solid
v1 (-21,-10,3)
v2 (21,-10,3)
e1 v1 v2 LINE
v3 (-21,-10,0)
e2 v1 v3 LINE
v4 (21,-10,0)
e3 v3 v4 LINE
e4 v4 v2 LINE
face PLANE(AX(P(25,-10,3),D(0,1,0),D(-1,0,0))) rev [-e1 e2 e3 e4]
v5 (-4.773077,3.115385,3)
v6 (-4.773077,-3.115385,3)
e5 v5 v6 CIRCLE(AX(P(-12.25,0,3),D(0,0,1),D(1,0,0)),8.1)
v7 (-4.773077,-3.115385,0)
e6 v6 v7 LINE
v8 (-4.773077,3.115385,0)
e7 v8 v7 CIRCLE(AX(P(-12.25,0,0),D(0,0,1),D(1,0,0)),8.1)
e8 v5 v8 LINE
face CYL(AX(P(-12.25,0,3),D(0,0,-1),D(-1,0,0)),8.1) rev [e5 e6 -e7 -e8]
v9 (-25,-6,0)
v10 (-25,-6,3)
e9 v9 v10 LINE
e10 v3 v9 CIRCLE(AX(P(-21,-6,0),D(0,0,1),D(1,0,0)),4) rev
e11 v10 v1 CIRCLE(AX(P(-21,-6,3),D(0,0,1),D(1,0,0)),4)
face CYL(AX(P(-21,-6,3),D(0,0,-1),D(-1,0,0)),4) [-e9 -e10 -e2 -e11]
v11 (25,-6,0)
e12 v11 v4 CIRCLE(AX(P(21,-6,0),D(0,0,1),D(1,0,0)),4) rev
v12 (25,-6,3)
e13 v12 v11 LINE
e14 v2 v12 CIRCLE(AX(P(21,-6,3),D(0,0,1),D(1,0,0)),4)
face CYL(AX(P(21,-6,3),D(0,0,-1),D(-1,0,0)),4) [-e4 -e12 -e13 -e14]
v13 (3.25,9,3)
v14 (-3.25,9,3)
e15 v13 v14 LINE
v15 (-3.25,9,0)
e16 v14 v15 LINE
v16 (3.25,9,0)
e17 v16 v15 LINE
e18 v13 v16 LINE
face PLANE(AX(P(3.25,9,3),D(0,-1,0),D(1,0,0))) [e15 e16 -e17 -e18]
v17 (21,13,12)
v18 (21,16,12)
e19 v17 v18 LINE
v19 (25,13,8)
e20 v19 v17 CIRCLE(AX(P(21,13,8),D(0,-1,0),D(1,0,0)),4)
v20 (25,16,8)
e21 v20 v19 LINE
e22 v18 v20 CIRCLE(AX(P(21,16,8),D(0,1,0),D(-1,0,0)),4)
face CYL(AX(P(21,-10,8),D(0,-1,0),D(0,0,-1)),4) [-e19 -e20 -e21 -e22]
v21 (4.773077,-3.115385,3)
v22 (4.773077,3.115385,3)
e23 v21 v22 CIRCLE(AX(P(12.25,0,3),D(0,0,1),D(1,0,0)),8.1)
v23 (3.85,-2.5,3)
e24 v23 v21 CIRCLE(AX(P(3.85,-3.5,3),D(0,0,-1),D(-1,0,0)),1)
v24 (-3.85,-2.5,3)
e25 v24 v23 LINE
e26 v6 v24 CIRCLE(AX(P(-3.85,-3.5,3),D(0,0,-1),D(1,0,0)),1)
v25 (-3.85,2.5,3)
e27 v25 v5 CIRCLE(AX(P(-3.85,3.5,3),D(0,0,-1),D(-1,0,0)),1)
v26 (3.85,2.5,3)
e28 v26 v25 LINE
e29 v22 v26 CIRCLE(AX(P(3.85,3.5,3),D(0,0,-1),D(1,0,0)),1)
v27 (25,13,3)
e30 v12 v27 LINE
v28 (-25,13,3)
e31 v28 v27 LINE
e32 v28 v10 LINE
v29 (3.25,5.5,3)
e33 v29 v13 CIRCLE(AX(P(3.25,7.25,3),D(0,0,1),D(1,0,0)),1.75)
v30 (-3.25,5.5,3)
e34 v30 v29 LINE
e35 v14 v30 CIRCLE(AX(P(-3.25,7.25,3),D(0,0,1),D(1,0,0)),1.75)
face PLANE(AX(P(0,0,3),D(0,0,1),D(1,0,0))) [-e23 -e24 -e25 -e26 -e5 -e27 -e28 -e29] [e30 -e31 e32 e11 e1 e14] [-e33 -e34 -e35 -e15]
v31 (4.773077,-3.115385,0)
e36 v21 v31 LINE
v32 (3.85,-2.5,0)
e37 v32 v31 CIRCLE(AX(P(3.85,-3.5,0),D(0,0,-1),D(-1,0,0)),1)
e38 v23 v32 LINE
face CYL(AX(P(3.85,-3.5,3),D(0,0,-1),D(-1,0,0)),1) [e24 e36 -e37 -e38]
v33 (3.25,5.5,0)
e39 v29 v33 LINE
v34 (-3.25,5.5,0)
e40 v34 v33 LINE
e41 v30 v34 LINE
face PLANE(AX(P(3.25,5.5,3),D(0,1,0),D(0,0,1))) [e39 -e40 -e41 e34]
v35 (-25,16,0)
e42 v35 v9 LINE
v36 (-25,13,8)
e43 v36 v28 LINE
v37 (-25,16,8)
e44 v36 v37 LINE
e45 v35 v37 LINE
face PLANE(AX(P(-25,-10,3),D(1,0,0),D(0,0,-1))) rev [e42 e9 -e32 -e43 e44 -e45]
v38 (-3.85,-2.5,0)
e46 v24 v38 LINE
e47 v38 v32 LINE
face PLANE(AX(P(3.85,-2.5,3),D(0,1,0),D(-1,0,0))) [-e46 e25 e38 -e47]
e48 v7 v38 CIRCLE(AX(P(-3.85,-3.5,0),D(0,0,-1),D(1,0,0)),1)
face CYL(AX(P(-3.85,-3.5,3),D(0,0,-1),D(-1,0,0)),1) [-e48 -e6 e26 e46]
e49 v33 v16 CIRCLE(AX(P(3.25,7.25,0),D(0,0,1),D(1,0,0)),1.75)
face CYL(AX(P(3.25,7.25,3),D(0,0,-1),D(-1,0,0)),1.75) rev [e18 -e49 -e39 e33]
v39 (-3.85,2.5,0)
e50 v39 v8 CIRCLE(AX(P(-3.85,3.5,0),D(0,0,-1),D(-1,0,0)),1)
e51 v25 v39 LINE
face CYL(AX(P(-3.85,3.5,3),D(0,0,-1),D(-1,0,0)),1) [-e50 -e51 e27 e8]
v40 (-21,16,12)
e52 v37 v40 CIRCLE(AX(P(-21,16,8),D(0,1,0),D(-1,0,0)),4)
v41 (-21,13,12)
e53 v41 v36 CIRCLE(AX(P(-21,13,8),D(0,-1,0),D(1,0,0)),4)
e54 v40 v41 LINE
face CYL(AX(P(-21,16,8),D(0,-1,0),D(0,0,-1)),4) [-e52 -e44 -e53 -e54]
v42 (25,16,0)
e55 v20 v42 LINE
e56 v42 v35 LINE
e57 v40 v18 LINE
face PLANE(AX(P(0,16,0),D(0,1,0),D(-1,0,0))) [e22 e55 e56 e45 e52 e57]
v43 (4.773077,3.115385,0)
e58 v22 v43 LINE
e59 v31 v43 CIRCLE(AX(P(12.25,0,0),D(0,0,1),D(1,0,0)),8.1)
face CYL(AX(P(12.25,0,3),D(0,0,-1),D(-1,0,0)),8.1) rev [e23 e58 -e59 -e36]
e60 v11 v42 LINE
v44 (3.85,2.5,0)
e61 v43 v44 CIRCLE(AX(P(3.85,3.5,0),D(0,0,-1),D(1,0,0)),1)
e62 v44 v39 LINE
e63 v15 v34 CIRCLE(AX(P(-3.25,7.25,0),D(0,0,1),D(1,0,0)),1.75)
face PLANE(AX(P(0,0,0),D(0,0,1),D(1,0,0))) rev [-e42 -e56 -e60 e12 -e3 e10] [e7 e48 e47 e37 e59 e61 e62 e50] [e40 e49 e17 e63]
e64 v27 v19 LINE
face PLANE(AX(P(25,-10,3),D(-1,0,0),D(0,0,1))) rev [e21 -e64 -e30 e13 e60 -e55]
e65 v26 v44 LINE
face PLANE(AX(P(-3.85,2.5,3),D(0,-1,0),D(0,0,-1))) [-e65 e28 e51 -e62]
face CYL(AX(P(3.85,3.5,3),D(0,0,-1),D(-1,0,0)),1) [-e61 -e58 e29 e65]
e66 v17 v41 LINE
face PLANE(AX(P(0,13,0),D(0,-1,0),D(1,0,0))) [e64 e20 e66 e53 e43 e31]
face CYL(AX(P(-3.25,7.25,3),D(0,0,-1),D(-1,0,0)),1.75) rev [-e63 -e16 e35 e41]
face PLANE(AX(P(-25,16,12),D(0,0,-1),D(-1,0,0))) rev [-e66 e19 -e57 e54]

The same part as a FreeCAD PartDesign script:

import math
import FreeCAD as App
import Part
import Sketcher
from FreeCAD import Vector
Q = App.Units.Quantity


def edges_at(feature, points):
    """Names of the edges that pass closest to the given points."""
    edges = feature.Shape.Edges
    near = lambda p: min(range(len(edges)), key=lambda i: edges[i].distToShape(Part.Vertex(*p))[0])
    return sorted({f"Edge{near(p) + 1}" for p in points})

doc = App.newDocument("Part")
params = doc.addObject("Spreadsheet::Sheet", "Params")
for row, (alias, value) in enumerate([
    ("sketch1_radius", "1 mm"),
    ("sketch1_radius2", "8.1 mm"),
    ("sketch1_width", "50 mm"),
    ("sketch1_height", "20 mm"),
    ("sketch1_radius3", "1.75 mm"),
    ("pad1_length", "3 mm"),
    ("sketch2_width", "50 mm"),
    ("sketch2_height", "12 mm"),
    ("pad2_length", "6 mm"),
    ("sketch3_width", "50 mm"),
    ("sketch3_height", "9 mm"),
    ("pocket1_length", "3 mm"),
    ("fillet_radius", "4 mm"),
], start=1):
    params.set(f"A{row}", alias)
    params.set(f"B{row}", "=" + value)
    params.setAlias(f"B{row}", alias)

body = doc.addObject("PartDesign::Body", "Body")

# Sketch on XY plane
sketch1 = body.newObject("Sketcher::SketchObject", "Sketch")
sketch1.AttachmentSupport = (doc.getObject("XY_Plane"), [""])
sketch1.MapMode = "FlatFace"
sketch1.addGeometry(Part.LineSegment(Vector(-25, 10, 0), Vector(-25, -10, 0)), False)
sketch1.addGeometry(Part.LineSegment(Vector(-25, -10, 0), Vector(25, -10, 0)), False)
sketch1.addGeometry(Part.LineSegment(Vector(25, -10, 0), Vector(25, 10, 0)), False)
sketch1.addGeometry(Part.LineSegment(Vector(25, 10, 0), Vector(-25, 10, 0)), False)
sketch1.addGeometry(Part.ArcOfCircle(Part.Circle(Vector(-3.85, 3.5, 0), Vector(0, 0, 1), 1), math.radians(-157.380135), math.radians(-90)), False)
sketch1.addGeometry(Part.LineSegment(Vector(-3.85, 2.5, 0), Vector(3.85, 2.5, 0)), False)
sketch1.addGeometry(Part.ArcOfCircle(Part.Circle(Vector(3.85, 3.5, 0), Vector(0, 0, 1), 1), math.radians(-90), math.radians(-22.619865)), False)
sketch1.addGeometry(Part.ArcOfCircle(Part.Circle(Vector(12.25, 0, 0), Vector(0, 0, 1), 8.1), math.radians(-157.380135), math.radians(157.380135)), False)
sketch1.addGeometry(Part.ArcOfCircle(Part.Circle(Vector(3.85, -3.5, 0), Vector(0, 0, 1), 1), math.radians(22.619865), math.radians(90)), False)
sketch1.addGeometry(Part.LineSegment(Vector(3.85, -2.5, 0), Vector(-3.85, -2.5, 0)), False)
sketch1.addGeometry(Part.ArcOfCircle(Part.Circle(Vector(-3.85, -3.5, 0), Vector(0, 0, 1), 1), math.radians(90), math.radians(157.380135)), False)
sketch1.addGeometry(Part.ArcOfCircle(Part.Circle(Vector(-12.25, 0, 0), Vector(0, 0, 1), 8.1), math.radians(22.619865), math.radians(337.380135)), False)
sketch1.addGeometry(Part.ArcOfCircle(Part.Circle(Vector(3.25, 7.25, 0), Vector(0, 0, 1), 1.75), math.radians(-90), math.radians(90)), False)
sketch1.addGeometry(Part.LineSegment(Vector(3.25, 5.5, 0), Vector(-3.25, 5.5, 0)), False)
sketch1.addGeometry(Part.ArcOfCircle(Part.Circle(Vector(-3.25, 7.25, 0), Vector(0, 0, 1), 1.75), math.radians(90), math.radians(270)), False)
sketch1.addGeometry(Part.LineSegment(Vector(-3.25, 9, 0), Vector(3.25, 9, 0)), False)
sketch1.addConstraint(Sketcher.Constraint("Coincident", 0, 2, 1, 1))
sketch1.addConstraint(Sketcher.Constraint("Coincident", 1, 2, 2, 1))
sketch1.addConstraint(Sketcher.Constraint("Coincident", 2, 2, 3, 1))
sketch1.addConstraint(Sketcher.Constraint("Coincident", 3, 2, 0, 1))
sketch1.addConstraint(Sketcher.Constraint("Tangent", 4, 2, 5, 1))
sketch1.addConstraint(Sketcher.Constraint("Tangent", 5, 2, 6, 1))
sketch1.addConstraint(Sketcher.Constraint("Tangent", 6, 2, 7, 2))
sketch1.addConstraint(Sketcher.Constraint("Tangent", 7, 1, 8, 1))
sketch1.addConstraint(Sketcher.Constraint("Tangent", 8, 2, 9, 1))
sketch1.addConstraint(Sketcher.Constraint("Tangent", 9, 2, 10, 1))
sketch1.addConstraint(Sketcher.Constraint("Tangent", 10, 2, 11, 2))
sketch1.addConstraint(Sketcher.Constraint("Tangent", 11, 1, 4, 1))
sketch1.addConstraint(Sketcher.Constraint("Tangent", 12, 1, 13, 1))
sketch1.addConstraint(Sketcher.Constraint("Tangent", 13, 2, 14, 2))
sketch1.addConstraint(Sketcher.Constraint("Tangent", 14, 1, 15, 1))
sketch1.addConstraint(Sketcher.Constraint("Tangent", 15, 2, 12, 2))
sketch1.addConstraint(Sketcher.Constraint("Vertical", 0))
sketch1.addConstraint(Sketcher.Constraint("Horizontal", 1))
sketch1.addConstraint(Sketcher.Constraint("Vertical", 2))
sketch1.addConstraint(Sketcher.Constraint("Horizontal", 3))
sketch1.addConstraint(Sketcher.Constraint("Horizontal", 5))
sketch1.addConstraint(Sketcher.Constraint("Horizontal", 9))
sketch1.addConstraint(Sketcher.Constraint("Horizontal", 13))
sketch1.addConstraint(Sketcher.Constraint("Horizontal", 15))
sketch1.addConstraint(Sketcher.Constraint("Equal", 4, 6))
sketch1.addConstraint(Sketcher.Constraint("Equal", 6, 8))
sketch1.addConstraint(Sketcher.Constraint("Equal", 8, 10))
sketch1.addConstraint(Sketcher.Constraint("Equal", 7, 11))
sketch1.addConstraint(Sketcher.Constraint("Symmetric", 4, 3, 8, 3, -1, 1))
sketch1.addConstraint(Sketcher.Constraint("Symmetric", 0, 2, 2, 2, -1, 1))
sketch1.addConstraint(Sketcher.Constraint("Symmetric", 7, 3, 11, 3, -2))
sketch1.addConstraint(Sketcher.Constraint("Radius", 4, Q("1 mm")))
sketch1.addConstraint(Sketcher.Constraint("Radius", 7, Q("8.1 mm")))
sketch1.addConstraint(Sketcher.Constraint("DistanceX", 1, 1, 1, 2, Q("50 mm")))
sketch1.addConstraint(Sketcher.Constraint("DistanceY", 0, 2, 0, 1, Q("20 mm")))
sketch1.addConstraint(Sketcher.Constraint("Radius", 12, Q("1.75 mm")))
sketch1.addConstraint(Sketcher.Constraint("DistanceX", 5, 1, 5, 2, Q("7.7 mm")))
sketch1.addConstraint(Sketcher.Constraint("DistanceX", 13, 2, 13, 1, Q("6.5 mm")))
sketch1.addConstraint(Sketcher.Constraint("DistanceY", -1, 1, 14, 1, Q("9 mm")))
sketch1.addConstraint(Sketcher.Constraint("DistanceY", 8, 3, 6, 3, Q("7 mm")))
sketch1.addConstraint(Sketcher.Constraint("DistanceX", 12, 3, 7, 3, Q("9 mm")))
sketch1.setExpression("Constraints[31]", "Params.sketch1_radius")
sketch1.setExpression("Constraints[32]", "Params.sketch1_radius2")
sketch1.setExpression("Constraints[33]", "Params.sketch1_width")
sketch1.setExpression("Constraints[34]", "Params.sketch1_height")
sketch1.setExpression("Constraints[35]", "Params.sketch1_radius3")
pad1 = body.newObject("PartDesign::Pad", "Pad")
pad1.Profile = sketch1
pad1.setExpression("Length", "Params.pad1_length")

# Sketch on XZ plane
sketch2 = body.newObject("Sketcher::SketchObject", "Sketch001")
sketch2.AttachmentSupport = (doc.getObject("XZ_Plane"), [""])
sketch2.MapMode = "FlatFace"
sketch2.AttachmentOffset = App.Placement(Vector(0, 0, -10), App.Rotation())
sketch2.addGeometry(Part.LineSegment(Vector(-25, 0, 0), Vector(-25, 12, 0)), False)
sketch2.addGeometry(Part.LineSegment(Vector(-25, 12, 0), Vector(25, 12, 0)), False)
sketch2.addGeometry(Part.LineSegment(Vector(25, 12, 0), Vector(25, 0, 0)), False)
sketch2.addGeometry(Part.LineSegment(Vector(25, 0, 0), Vector(-25, 0, 0)), False)
sketch2.addConstraint(Sketcher.Constraint("Coincident", 0, 2, 1, 1))
sketch2.addConstraint(Sketcher.Constraint("Coincident", 1, 2, 2, 1))
sketch2.addConstraint(Sketcher.Constraint("Coincident", 2, 2, 3, 1))
sketch2.addConstraint(Sketcher.Constraint("Coincident", 3, 2, 0, 1))
sketch2.addConstraint(Sketcher.Constraint("Vertical", 0))
sketch2.addConstraint(Sketcher.Constraint("Horizontal", 1))
sketch2.addConstraint(Sketcher.Constraint("Vertical", 2))
sketch2.addConstraint(Sketcher.Constraint("Horizontal", 3))
sketch2.addConstraint(Sketcher.Constraint("Symmetric", 2, 2, 3, 2, -1, 1))
sketch2.addConstraint(Sketcher.Constraint("DistanceX", 1, 1, 1, 2, Q("50 mm")))
sketch2.addConstraint(Sketcher.Constraint("DistanceY", 0, 1, 0, 2, Q("12 mm")))
sketch2.setExpression("Constraints[9]", "Params.sketch2_width")
sketch2.setExpression("Constraints[10]", "Params.sketch2_height")
pad2 = body.newObject("PartDesign::Pad", "Pad001")
pad2.Profile = sketch2
pad2.setExpression("Length", "Params.pad2_length")
pad2.Reversed = True

# Sketch on XZ plane
sketch3 = body.newObject("Sketcher::SketchObject", "Sketch002")
sketch3.AttachmentSupport = (doc.getObject("XZ_Plane"), [""])
sketch3.MapMode = "FlatFace"
sketch3.AttachmentOffset = App.Placement(Vector(0, 0, -10), App.Rotation())
sketch3.addGeometry(Part.LineSegment(Vector(-25, 12, 0), Vector(-25, 3, 0)), False)
sketch3.addGeometry(Part.LineSegment(Vector(-25, 3, 0), Vector(25, 3, 0)), False)
sketch3.addGeometry(Part.LineSegment(Vector(25, 3, 0), Vector(25, 12, 0)), False)
sketch3.addGeometry(Part.LineSegment(Vector(25, 12, 0), Vector(-25, 12, 0)), False)
sketch3.addConstraint(Sketcher.Constraint("Coincident", 0, 2, 1, 1))
sketch3.addConstraint(Sketcher.Constraint("Coincident", 1, 2, 2, 1))
sketch3.addConstraint(Sketcher.Constraint("Coincident", 2, 2, 3, 1))
sketch3.addConstraint(Sketcher.Constraint("Coincident", 3, 2, 0, 1))
sketch3.addConstraint(Sketcher.Constraint("Vertical", 0))
sketch3.addConstraint(Sketcher.Constraint("Horizontal", 1))
sketch3.addConstraint(Sketcher.Constraint("Vertical", 2))
sketch3.addConstraint(Sketcher.Constraint("Horizontal", 3))
sketch3.addConstraint(Sketcher.Constraint("DistanceX", 1, 1, 1, 2, Q("50 mm")))
sketch3.addConstraint(Sketcher.Constraint("DistanceY", 0, 2, 0, 1, Q("9 mm")))
sketch3.addConstraint(Sketcher.Constraint("DistanceX", 0, 2, -1, 1, Q("25 mm")))
sketch3.addConstraint(Sketcher.Constraint("DistanceY", -1, 1, 0, 2, Q("3 mm")))
sketch3.setExpression("Constraints[8]", "Params.sketch3_width")
sketch3.setExpression("Constraints[9]", "Params.sketch3_height")
pocket1 = body.newObject("PartDesign::Pocket", "Pocket")
pocket1.Profile = sketch3
pocket1.setExpression("Length", "Params.pocket1_length")
doc.recompute()

fillet = body.newObject("PartDesign::Fillet", "Fillet")
fillet.Base = (pocket1, edges_at(pocket1, [
    (-25, 14.5, 12),
    (25, 14.5, 12),
    (25, -10, 1.5),
    (-25, -10, 1.5),
]))
fillet.setExpression("Radius", "Params.fillet_radius")

doc.recompute()
